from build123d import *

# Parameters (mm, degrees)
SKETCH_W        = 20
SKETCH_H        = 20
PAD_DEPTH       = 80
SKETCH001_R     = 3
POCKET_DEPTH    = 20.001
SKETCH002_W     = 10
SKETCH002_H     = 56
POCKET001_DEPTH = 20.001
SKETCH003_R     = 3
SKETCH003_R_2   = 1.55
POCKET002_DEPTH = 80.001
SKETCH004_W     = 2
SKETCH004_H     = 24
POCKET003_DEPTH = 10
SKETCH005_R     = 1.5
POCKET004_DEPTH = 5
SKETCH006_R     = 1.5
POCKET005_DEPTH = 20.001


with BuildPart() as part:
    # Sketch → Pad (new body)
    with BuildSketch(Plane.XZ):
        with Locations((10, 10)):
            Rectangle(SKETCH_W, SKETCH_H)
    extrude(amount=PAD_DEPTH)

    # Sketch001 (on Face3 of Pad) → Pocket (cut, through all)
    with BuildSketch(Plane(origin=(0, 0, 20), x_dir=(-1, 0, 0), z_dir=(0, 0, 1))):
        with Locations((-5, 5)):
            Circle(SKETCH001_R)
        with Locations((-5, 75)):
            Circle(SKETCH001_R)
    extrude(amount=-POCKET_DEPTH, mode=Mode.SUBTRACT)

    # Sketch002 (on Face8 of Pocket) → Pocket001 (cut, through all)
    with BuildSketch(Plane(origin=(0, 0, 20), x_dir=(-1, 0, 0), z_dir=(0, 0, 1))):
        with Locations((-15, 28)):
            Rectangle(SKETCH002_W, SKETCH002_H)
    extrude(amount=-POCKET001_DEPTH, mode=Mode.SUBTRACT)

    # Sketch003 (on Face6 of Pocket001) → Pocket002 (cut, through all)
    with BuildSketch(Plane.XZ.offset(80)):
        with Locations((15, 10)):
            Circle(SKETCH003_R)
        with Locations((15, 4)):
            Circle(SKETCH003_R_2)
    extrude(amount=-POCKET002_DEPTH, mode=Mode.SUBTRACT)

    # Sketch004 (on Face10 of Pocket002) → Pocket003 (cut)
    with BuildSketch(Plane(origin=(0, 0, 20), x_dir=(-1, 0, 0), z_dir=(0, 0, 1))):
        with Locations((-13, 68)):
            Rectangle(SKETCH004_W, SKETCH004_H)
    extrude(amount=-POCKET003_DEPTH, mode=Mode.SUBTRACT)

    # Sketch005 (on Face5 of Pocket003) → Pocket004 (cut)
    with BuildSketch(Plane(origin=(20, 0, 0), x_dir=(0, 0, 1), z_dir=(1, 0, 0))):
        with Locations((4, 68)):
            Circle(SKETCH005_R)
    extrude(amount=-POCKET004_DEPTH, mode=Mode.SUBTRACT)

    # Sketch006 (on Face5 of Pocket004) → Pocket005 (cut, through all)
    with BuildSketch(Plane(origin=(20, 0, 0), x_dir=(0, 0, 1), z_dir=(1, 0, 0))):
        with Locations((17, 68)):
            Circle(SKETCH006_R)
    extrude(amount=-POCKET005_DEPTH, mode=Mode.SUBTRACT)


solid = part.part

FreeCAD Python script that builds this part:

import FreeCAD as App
import Part
import Sketcher
from FreeCAD import Vector

doc = App.newDocument("Part")
body = doc.addObject("PartDesign::Body", "Body")

sketch1 = body.newObject("Sketcher::SketchObject", "Sketch")
sketch1.AttachmentSupport = (doc.getObject("XZ_Plane"), [""])
sketch1.MapMode = "FlatFace"
sketch1.addGeometry([
    Part.LineSegment(Vector(0, 20, 0), Vector(0, 0, 0)),
    Part.LineSegment(Vector(0, 0, 0), Vector(20, 0, 0)),
    Part.LineSegment(Vector(20, 0, 0), Vector(20, 20, 0)),
    Part.LineSegment(Vector(20, 20, 0), Vector(0, 20, 0)),
], False)
sketch1.addConstraint([
    Sketcher.Constraint("Coincident", 0, 2, 1, 1),
    Sketcher.Constraint("Coincident", 1, 2, 2, 1),
    Sketcher.Constraint("Coincident", 2, 2, 3, 1),
    Sketcher.Constraint("Coincident", 3, 2, 0, 1),
    Sketcher.Constraint("Vertical", 0),
    Sketcher.Constraint("Horizontal", 1),
    Sketcher.Constraint("Vertical", 2),
    Sketcher.Constraint("Horizontal", 3),
    Sketcher.Constraint("Coincident", 0, 2, -1, 1),
    Sketcher.Constraint("Equal", 3, 0),
    Sketcher.Constraint("DistanceX", 1, 1, 1, 2, 20.0),
])
pad1 = body.newObject("PartDesign::Pad", "Pad")
pad1.Profile = sketch1
pad1.Length = 80

sketch2 = body.newObject("Sketcher::SketchObject", "Sketch001")
sketch2.AttachmentSupport = (doc.getObject("XY_Plane"), [""])
sketch2.MapMode = "FlatFace"
sketch2.AttachmentOffset = App.Placement(Vector(0, 0, 20), App.Rotation())
sketch2.addGeometry([
    Part.Circle(Vector(5, -5, 0), Vector(0, 0, 1), 3),
    Part.Circle(Vector(5, -75, 0), Vector(0, 0, 1), 3),
], False)
sketch2.addConstraint([
    Sketcher.Constraint("Equal", 0, 1),
    Sketcher.Constraint("Vertical", 0, 3, 1, 3),
    Sketcher.Constraint("Diameter", 0, 6.0),
    Sketcher.Constraint("DistanceX", -1, 1, 0, 3, 5.0),
    Sketcher.Constraint("DistanceY", 0, 3, -1, 1, 5.0),
    Sketcher.Constraint("DistanceY", 1, 3, -1, 1, 75.0),
])
pocket1 = body.newObject("PartDesign::Pocket", "Pocket")
pocket1.Profile = sketch2
pocket1.Type = "ThroughAll"

sketch3 = body.newObject("Sketcher::SketchObject", "Sketch002")
sketch3.AttachmentSupport = (doc.getObject("XY_Plane"), [""])
sketch3.MapMode = "FlatFace"
sketch3.AttachmentOffset = App.Placement(Vector(0, 0, 20), App.Rotation())
sketch3.addGeometry([
    Part.LineSegment(Vector(20, -56, 0), Vector(20, 0, 0)),
    Part.LineSegment(Vector(20, 0, 0), Vector(10, 0, 0)),
    Part.LineSegment(Vector(10, 0, 0), Vector(10, -56, 0)),
    Part.LineSegment(Vector(10, -56, 0), Vector(20, -56, 0)),
], False)
sketch3.addConstraint([
    Sketcher.Constraint("Coincident", 0, 2, 1, 1),
    Sketcher.Constraint("Coincident", 1, 2, 2, 1),
    Sketcher.Constraint("Coincident", 2, 2, 3, 1),
    Sketcher.Constraint("Coincident", 3, 2, 0, 1),
    Sketcher.Constraint("Vertical", 0),
    Sketcher.Constraint("Horizontal", 1),
    Sketcher.Constraint("Vertical", 2),
    Sketcher.Constraint("Horizontal", 3),
    Sketcher.Constraint("PointOnObject", 0, 2, -1),
    Sketcher.Constraint("DistanceX", 1, 2, 1, 1, 10.0),
    Sketcher.Constraint("DistanceY", 0, 1, 0, 2, 56.0),
    Sketcher.Constraint("DistanceX", -1, 1, 0, 2, 20.0),
])
pocket2 = body.newObject("PartDesign::Pocket", "Pocket001")
pocket2.Profile = sketch3
pocket2.Type = "ThroughAll"

sketch4 = body.newObject("Sketcher::SketchObject", "Sketch003")
sketch4.AttachmentSupport = (doc.getObject("XZ_Plane"), [""])
sketch4.MapMode = "FlatFace"
sketch4.AttachmentOffset = App.Placement(Vector(0, 0, 80), App.Rotation())
sketch4.addGeometry([
    Part.Circle(Vector(15, 10, 0), Vector(0, 0, 1), 3),
    Part.Circle(Vector(15, 4, 0), Vector(0, 0, 1), 1.6),
], False)
sketch4.addConstraint([
    Sketcher.Constraint("Vertical", 0, 3, 1, 3),
    Sketcher.Constraint("Diameter", 0, 6.0),
    Sketcher.Constraint("Diameter", 1, 3.1),
    Sketcher.Constraint("DistanceX", -1, 1, 0, 3, 15.0),
    Sketcher.Constraint("DistanceY", -1, 1, 0, 3, 10.0),
    Sketcher.Constraint("DistanceY", -1, 1, 1, 3, 4.0),
])
pocket3 = body.newObject("PartDesign::Pocket", "Pocket002")
pocket3.Profile = sketch4
pocket3.Type = "ThroughAll"

sketch5 = body.newObject("Sketcher::SketchObject", "Sketch004")
sketch5.AttachmentSupport = (doc.getObject("XY_Plane"), [""])
sketch5.MapMode = "FlatFace"
sketch5.AttachmentOffset = App.Placement(Vector(0, 0, 20), App.Rotation())
sketch5.addGeometry([
    Part.LineSegment(Vector(14, -80, 0), Vector(14, -56, 0)),
    Part.LineSegment(Vector(14, -56, 0), Vector(12, -56, 0)),
    Part.LineSegment(Vector(12, -56, 0), Vector(12, -80, 0)),
    Part.LineSegment(Vector(12, -80, 0), Vector(14, -80, 0)),
], False)
sketch5.addConstraint([
    Sketcher.Constraint("Coincident", 0, 2, 1, 1),
    Sketcher.Constraint("Coincident", 1, 2, 2, 1),
    Sketcher.Constraint("Coincident", 2, 2, 3, 1),
    Sketcher.Constraint("Coincident", 3, 2, 0, 1),
    Sketcher.Constraint("Vertical", 0),
    Sketcher.Constraint("Horizontal", 1),
    Sketcher.Constraint("Vertical", 2),
    Sketcher.Constraint("Horizontal", 3),
    Sketcher.Constraint("DistanceX", 1, 2, 1, 1, 2.0),
    Sketcher.Constraint("DistanceY", 0, 1, 0, 2, 24.0),
    Sketcher.Constraint("DistanceX", -1, 1, 0, 2, 14.0),
    Sketcher.Constraint("DistanceY", 0, 2, -1, 1, 56.0),
])
pocket4 = body.newObject("PartDesign::Pocket", "Pocket003")
pocket4.Profile = sketch5
pocket4.Length = 10

sketch6 = body.newObject("Sketcher::SketchObject", "Sketch005")
sketch6.AttachmentSupport = (doc.getObject("YZ_Plane"), [""])
sketch6.MapMode = "FlatFace"
sketch6.AttachmentOffset = App.Placement(Vector(0, 0, 20), App.Rotation())
sketch6.addGeometry(Part.Circle(Vector(-68, 4, 0), Vector(0, 0, 1), 1.5), False)
sketch6.addConstraint([
    Sketcher.Constraint("Diameter", 0, 3.0),
    Sketcher.Constraint("DistanceX", 0, 3, -1, 1, 68.0),
    Sketcher.Constraint("DistanceY", -1, 1, 0, 3, 4.0),
])
pocket5 = body.newObject("PartDesign::Pocket", "Pocket004")
pocket5.Profile = sketch6
pocket5.Length = 5

sketch7 = body.newObject("Sketcher::SketchObject", "Sketch006")
sketch7.AttachmentSupport = (doc.getObject("YZ_Plane"), [""])
sketch7.MapMode = "FlatFace"
sketch7.AttachmentOffset = App.Placement(Vector(0, 0, 20), App.Rotation())
sketch7.addGeometry(Part.Circle(Vector(-68, 17, 0), Vector(0, 0, 1), 1.5), False)
sketch7.addConstraint([
    Sketcher.Constraint("Diameter", 0, 3.0),
    Sketcher.Constraint("DistanceX", 0, 3, -1, 1, 68.0),
    Sketcher.Constraint("DistanceY", -1, 1, 0, 3, 17.0),
])
pocket6 = body.newObject("PartDesign::Pocket", "Pocket005")
pocket6.Profile = sketch7
pocket6.Type = "ThroughAll"

doc.recompute()
